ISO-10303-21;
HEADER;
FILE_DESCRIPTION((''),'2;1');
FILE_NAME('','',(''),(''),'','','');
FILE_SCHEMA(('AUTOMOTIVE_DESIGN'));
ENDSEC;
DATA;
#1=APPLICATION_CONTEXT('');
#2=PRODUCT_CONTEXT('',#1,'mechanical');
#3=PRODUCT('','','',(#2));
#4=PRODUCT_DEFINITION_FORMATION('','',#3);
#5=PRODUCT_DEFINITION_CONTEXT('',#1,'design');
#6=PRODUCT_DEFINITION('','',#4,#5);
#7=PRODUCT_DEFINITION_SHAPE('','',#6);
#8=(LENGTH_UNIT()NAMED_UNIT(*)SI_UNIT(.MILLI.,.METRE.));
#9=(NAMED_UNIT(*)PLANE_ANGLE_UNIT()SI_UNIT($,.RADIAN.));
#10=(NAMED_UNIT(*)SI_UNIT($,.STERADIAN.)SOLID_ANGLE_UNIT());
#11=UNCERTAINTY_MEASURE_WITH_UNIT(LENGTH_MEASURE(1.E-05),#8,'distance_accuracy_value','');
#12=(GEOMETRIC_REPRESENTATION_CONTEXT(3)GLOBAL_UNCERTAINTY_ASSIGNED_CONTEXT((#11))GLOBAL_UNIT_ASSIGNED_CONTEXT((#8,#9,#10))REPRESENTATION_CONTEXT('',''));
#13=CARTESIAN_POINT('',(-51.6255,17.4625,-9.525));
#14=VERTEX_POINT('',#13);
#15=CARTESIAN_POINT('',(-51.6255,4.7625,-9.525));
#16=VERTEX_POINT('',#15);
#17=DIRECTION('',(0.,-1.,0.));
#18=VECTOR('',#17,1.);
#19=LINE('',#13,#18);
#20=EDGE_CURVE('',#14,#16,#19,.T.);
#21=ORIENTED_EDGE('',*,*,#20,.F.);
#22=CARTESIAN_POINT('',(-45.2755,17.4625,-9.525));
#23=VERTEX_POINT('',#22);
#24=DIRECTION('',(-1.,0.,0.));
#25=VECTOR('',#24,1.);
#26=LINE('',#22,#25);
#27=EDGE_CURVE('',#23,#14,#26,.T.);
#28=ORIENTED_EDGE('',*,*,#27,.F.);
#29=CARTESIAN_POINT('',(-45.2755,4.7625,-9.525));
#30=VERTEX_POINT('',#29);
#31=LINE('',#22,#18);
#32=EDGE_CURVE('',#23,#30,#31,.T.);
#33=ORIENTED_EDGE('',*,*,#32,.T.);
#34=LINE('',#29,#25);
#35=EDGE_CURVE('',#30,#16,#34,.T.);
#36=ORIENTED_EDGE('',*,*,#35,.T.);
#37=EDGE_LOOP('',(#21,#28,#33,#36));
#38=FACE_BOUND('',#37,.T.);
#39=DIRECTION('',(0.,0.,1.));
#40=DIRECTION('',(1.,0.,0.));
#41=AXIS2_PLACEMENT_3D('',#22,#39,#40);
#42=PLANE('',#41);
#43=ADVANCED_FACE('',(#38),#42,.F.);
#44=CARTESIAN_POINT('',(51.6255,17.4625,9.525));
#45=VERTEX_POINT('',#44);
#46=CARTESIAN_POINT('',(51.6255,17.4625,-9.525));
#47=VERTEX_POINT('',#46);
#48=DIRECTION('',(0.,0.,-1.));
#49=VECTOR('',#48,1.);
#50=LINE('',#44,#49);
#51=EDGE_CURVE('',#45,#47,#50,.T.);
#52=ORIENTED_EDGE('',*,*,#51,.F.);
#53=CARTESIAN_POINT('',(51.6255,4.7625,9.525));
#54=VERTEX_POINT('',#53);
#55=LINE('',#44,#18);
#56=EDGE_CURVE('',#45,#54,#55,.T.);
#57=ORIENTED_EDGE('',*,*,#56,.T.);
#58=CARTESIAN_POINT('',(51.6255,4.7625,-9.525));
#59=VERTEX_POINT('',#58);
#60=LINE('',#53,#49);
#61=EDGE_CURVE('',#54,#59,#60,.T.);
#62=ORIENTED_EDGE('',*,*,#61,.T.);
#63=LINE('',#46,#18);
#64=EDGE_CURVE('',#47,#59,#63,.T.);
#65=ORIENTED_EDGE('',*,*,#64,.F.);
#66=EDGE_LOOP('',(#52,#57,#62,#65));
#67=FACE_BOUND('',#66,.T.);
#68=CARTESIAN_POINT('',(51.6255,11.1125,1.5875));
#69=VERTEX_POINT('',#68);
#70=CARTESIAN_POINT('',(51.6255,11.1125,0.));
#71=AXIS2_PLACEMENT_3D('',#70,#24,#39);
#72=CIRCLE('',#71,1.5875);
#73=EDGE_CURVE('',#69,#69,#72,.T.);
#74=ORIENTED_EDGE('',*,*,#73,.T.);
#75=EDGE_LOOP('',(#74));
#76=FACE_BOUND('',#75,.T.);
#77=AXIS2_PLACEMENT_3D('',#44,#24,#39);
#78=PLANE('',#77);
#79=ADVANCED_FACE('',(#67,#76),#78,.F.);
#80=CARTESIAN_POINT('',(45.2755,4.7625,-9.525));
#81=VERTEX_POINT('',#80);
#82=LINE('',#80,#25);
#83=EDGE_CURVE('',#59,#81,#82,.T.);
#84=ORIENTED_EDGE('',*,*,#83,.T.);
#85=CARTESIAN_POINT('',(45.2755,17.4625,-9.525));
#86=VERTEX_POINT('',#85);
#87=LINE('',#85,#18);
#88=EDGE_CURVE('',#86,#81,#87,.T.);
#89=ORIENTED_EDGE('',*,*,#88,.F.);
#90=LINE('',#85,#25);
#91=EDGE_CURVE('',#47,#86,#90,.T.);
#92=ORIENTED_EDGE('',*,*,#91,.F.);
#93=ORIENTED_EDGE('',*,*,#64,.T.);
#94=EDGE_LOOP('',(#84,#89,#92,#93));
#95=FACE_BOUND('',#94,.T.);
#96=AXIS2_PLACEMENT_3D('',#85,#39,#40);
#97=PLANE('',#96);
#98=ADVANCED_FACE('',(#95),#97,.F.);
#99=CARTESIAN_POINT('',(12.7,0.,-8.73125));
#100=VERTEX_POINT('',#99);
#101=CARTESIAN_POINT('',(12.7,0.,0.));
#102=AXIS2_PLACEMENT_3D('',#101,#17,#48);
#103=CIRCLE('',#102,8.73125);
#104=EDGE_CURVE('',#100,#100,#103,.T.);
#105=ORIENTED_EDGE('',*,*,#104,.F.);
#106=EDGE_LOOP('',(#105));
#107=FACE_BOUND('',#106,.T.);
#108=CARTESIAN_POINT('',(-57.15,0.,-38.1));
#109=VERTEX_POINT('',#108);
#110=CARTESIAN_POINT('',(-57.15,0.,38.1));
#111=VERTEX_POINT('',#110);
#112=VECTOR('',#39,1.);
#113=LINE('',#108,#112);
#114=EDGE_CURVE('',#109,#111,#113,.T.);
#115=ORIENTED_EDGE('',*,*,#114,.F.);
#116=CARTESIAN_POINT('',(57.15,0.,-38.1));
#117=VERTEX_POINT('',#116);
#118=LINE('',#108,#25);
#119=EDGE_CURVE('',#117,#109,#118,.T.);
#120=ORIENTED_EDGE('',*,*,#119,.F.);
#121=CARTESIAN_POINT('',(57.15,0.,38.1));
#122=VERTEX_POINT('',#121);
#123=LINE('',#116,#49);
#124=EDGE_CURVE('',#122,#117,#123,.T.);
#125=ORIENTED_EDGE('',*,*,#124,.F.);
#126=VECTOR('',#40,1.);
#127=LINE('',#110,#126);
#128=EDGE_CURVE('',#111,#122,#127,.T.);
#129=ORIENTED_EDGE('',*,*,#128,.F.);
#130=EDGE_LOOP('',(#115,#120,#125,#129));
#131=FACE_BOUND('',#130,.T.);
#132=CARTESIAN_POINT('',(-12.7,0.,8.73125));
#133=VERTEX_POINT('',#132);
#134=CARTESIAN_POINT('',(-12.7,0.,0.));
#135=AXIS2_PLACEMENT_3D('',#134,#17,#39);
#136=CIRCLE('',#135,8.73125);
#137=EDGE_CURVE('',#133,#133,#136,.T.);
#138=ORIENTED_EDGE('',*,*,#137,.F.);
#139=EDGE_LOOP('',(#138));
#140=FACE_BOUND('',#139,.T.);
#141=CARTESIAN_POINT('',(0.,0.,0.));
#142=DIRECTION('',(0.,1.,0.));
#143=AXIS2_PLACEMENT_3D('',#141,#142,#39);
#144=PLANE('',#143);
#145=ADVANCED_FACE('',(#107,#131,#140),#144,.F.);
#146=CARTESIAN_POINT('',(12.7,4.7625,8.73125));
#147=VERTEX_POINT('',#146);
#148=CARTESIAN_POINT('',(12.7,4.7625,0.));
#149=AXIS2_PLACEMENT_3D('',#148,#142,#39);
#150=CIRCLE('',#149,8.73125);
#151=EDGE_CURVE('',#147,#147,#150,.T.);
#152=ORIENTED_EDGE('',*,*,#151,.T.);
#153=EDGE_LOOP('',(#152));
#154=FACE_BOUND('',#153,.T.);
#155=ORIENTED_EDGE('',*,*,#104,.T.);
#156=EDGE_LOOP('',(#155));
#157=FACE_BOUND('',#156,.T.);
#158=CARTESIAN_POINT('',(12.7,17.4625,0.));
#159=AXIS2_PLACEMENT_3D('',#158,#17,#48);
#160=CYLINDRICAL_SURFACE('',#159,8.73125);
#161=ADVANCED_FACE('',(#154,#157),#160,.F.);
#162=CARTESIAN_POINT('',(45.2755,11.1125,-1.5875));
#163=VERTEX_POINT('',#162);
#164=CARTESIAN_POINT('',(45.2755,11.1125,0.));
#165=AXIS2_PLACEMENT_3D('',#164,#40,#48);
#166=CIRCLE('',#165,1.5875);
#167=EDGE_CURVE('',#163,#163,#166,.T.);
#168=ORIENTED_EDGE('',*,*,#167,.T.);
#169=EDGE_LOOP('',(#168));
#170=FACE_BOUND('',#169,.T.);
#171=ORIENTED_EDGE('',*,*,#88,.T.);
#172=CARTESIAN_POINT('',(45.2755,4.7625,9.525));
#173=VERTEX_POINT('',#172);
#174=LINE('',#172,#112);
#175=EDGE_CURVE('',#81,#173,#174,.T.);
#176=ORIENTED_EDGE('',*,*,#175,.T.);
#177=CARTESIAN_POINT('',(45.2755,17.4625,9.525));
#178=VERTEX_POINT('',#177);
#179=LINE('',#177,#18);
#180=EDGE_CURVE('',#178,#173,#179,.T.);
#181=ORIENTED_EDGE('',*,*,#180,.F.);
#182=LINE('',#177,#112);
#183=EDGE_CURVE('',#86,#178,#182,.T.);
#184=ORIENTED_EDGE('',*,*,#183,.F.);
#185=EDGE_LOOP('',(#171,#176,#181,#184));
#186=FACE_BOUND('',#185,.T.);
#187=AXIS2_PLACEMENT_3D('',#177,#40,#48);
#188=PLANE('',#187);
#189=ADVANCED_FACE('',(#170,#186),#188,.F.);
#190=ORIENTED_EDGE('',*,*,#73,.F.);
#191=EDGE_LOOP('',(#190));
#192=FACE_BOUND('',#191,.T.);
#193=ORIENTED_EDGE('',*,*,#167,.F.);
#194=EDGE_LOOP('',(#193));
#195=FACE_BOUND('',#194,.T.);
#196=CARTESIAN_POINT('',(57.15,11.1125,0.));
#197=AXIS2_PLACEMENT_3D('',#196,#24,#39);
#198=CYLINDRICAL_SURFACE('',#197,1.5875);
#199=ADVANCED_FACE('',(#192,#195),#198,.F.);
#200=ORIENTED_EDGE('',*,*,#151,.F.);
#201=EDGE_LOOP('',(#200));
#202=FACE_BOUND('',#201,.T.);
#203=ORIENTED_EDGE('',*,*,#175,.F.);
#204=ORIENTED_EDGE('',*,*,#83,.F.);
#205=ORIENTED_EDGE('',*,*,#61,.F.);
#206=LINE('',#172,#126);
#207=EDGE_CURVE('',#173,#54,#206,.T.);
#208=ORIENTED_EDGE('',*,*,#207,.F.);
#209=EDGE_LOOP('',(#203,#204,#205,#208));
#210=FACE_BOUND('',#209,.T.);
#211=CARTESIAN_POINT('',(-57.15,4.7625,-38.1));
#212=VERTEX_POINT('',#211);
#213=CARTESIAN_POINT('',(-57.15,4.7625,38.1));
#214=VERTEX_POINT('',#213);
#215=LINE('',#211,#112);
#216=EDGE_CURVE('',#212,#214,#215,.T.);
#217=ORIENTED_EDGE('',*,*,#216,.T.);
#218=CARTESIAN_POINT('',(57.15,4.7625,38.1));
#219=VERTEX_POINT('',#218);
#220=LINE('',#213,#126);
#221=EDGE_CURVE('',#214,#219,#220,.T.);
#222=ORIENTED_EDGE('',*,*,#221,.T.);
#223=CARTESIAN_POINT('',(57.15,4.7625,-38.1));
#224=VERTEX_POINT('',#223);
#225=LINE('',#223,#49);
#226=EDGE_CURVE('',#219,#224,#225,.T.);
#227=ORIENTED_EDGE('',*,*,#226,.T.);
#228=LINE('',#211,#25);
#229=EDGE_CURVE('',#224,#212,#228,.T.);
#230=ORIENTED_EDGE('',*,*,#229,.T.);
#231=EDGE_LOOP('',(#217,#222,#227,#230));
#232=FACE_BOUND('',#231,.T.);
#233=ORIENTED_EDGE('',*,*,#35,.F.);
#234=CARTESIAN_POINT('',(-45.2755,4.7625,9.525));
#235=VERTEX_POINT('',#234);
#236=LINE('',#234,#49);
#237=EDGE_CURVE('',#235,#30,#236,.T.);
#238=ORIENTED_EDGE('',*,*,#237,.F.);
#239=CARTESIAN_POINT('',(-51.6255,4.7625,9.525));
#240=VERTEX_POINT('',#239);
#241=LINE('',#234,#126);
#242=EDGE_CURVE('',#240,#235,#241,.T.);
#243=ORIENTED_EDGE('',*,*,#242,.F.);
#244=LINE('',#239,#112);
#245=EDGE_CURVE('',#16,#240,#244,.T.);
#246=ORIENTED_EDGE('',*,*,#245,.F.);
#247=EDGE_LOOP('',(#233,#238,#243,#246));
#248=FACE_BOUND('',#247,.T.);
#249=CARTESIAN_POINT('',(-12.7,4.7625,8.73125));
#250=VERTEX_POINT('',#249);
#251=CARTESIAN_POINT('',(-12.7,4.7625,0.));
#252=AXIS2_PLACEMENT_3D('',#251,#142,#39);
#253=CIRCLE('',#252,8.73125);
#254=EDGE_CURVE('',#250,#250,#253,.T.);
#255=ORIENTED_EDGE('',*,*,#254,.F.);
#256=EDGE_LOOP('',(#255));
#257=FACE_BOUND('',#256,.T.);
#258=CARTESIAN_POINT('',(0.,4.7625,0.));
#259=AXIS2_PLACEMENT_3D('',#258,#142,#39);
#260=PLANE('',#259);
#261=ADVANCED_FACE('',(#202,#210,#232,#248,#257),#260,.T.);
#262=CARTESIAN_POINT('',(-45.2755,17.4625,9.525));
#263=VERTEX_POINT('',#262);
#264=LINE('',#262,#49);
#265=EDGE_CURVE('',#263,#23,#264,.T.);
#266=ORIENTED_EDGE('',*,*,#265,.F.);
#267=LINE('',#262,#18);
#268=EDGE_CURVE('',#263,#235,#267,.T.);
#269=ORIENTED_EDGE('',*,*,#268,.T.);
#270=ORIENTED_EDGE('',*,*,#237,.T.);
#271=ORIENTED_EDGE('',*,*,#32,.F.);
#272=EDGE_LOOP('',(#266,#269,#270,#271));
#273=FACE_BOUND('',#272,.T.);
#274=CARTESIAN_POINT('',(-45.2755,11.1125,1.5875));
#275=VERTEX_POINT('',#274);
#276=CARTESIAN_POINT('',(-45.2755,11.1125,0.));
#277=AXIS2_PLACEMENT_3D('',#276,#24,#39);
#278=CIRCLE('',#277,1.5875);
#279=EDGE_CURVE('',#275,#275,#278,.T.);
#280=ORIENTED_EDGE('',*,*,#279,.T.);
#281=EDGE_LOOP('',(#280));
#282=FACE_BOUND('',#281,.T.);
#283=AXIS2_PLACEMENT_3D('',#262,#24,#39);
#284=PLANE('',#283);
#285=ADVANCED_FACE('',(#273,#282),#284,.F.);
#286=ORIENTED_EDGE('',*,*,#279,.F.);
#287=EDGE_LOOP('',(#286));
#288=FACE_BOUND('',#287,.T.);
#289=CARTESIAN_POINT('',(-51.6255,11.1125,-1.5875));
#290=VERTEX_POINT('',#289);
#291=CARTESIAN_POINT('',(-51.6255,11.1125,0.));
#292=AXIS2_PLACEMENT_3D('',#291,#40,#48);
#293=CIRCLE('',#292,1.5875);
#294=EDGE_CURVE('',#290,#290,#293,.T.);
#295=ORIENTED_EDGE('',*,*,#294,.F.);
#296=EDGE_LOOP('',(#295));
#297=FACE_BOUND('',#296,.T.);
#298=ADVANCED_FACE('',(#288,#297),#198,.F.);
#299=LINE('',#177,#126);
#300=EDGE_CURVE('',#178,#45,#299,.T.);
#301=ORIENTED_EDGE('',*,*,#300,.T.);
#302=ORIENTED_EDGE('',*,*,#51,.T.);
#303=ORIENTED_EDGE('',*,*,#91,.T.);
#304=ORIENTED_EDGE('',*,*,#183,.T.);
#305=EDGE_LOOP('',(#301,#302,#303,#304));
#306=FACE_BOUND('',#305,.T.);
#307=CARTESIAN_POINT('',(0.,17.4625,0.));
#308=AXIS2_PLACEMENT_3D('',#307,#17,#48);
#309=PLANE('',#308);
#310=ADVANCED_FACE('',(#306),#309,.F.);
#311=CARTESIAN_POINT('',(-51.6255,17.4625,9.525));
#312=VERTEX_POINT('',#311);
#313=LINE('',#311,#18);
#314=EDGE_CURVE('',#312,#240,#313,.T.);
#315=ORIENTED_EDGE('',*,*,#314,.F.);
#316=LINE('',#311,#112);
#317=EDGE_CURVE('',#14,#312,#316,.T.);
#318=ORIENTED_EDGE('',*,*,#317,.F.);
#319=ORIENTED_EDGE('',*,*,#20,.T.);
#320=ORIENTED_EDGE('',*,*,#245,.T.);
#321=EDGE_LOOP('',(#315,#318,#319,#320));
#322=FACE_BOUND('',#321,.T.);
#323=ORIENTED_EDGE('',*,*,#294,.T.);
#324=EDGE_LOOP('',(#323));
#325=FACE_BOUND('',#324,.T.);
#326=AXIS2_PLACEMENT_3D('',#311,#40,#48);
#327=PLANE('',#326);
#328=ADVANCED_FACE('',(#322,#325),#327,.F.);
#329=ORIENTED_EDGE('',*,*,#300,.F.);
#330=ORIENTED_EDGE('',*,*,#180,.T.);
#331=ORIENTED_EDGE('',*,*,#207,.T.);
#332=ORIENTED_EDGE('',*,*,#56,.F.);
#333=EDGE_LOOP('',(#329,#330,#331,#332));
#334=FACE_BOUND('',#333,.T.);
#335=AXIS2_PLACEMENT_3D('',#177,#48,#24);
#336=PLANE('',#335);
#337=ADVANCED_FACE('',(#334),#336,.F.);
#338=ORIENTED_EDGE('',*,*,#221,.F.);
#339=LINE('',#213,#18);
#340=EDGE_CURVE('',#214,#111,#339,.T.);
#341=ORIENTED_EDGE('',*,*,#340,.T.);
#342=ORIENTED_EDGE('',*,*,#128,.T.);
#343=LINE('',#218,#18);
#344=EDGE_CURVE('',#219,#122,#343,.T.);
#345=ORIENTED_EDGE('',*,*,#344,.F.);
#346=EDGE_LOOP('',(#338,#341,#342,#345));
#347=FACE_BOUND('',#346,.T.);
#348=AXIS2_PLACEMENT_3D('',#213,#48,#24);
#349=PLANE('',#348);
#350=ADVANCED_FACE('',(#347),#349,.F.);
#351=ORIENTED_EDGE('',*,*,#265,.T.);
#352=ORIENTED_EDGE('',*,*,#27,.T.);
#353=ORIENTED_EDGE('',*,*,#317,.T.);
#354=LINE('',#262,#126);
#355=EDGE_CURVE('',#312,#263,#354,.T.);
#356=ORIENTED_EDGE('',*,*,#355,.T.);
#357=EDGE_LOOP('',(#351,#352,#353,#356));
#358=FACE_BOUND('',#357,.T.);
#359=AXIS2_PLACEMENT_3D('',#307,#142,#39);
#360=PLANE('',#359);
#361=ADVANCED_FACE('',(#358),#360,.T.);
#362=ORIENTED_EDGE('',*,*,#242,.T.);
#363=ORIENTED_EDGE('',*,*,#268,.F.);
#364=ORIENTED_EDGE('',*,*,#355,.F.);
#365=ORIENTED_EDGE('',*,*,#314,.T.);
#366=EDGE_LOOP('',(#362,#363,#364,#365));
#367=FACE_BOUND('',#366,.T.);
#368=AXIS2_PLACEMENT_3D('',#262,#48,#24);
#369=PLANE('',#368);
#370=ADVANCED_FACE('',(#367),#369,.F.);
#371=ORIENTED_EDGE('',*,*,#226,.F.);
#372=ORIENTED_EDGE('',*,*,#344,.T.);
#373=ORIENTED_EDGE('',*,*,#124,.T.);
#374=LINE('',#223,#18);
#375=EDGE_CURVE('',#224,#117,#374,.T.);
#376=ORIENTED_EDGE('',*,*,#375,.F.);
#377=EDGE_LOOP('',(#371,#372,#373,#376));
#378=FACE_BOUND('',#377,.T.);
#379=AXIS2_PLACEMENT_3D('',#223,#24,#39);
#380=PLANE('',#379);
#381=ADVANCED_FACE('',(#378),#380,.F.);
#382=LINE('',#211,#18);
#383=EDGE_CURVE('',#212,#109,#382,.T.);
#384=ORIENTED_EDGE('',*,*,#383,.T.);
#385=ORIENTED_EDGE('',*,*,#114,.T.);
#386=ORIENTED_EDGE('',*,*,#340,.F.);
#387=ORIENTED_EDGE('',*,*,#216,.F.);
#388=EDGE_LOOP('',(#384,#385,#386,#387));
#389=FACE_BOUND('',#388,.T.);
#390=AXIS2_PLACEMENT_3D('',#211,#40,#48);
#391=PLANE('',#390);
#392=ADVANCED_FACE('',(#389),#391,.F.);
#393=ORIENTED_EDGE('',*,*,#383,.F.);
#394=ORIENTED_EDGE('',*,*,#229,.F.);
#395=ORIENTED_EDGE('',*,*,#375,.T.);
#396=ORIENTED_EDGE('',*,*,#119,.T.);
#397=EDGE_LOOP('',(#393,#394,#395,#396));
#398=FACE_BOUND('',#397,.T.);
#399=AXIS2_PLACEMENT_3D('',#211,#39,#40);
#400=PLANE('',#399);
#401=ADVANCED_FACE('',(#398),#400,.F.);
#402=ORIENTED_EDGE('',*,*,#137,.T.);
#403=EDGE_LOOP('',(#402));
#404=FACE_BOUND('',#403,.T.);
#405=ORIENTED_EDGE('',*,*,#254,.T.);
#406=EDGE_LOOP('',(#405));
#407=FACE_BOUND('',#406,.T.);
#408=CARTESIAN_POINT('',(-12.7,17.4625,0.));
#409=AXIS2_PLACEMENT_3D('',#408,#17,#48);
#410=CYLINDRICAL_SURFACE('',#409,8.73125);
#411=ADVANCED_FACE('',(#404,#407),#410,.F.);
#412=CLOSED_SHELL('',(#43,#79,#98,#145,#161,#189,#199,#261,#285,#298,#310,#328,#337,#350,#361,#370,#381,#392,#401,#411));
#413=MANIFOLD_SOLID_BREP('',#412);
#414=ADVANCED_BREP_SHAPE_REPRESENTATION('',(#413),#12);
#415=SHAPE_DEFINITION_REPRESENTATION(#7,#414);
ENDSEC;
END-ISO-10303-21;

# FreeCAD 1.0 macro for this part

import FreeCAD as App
import Part
import Sketcher
from FreeCAD import Vector
Q = App.Units.Quantity


def add_polygon(sketch, points):
    """Adds a closed chain of lines whose ends are joined by coincident constraints."""
    first, n = sketch.GeometryCount, len(points)
    for a, b in zip(points, points[1:] + points[:1]):
        sketch.addGeometry(Part.LineSegment(App.Vector(*a, 0), App.Vector(*b, 0)), False)
    for i in range(n):
        sketch.addConstraint(Sketcher.Constraint("Coincident", first + i, 2, first + (i + 1) % n, 1))

doc = App.newDocument("Part")
body = doc.addObject("PartDesign::Body", "Body")

# Sketch on XZ plane
sketch1 = body.newObject("Sketcher::SketchObject", "Sketch")
sketch1.AttachmentSupport = (doc.getObject("XZ_Plane"), [""])
sketch1.MapMode = "FlatFace"
add_polygon(sketch1, [(-57, -38), (-57, 38), (57, 38), (57, -38)])  # lines 0-3
sketch1.addConstraint([
    Sketcher.Constraint("Vertical", 0),
    Sketcher.Constraint("Horizontal", 1),
    Sketcher.Constraint("Vertical", 2),
    Sketcher.Constraint("Horizontal", 3),
    Sketcher.Constraint("Symmetric", 0, 2, 2, 2, -1, 1),
    Sketcher.Constraint("DistanceY", 0, 1, 0, 2, Q("3 in")),
    Sketcher.Constraint("DistanceX", 1, 1, 1, 2, Q("4.5 in")),
])
pad1 = body.newObject("PartDesign::Pad", "Pad")
pad1.Profile = sketch1
pad1.Length = Q("0.1875 in")
pad1.Reversed = True

# Sketch on XZ plane
sketch2 = body.newObject("Sketcher::SketchObject", "Sketch001")
sketch2.AttachmentSupport = (doc.getObject("XZ_Plane"), [""])
sketch2.MapMode = "FlatFace"
sketch2.AttachmentOffset = App.Placement(Vector(0, 0, -0.1875 * 25.4), App.Rotation())
add_polygon(sketch2, [(-52, -10), (-52, 10), (-45, 10), (-45, -10)])  # lines 0-3
add_polygon(sketch2, [(45, -10), (45, 10), (52, 10), (52, -10)])  # lines 4-7
sketch2.addConstraint([
    Sketcher.Constraint("Vertical", 0),
    Sketcher.Constraint("Horizontal", 1),
    Sketcher.Constraint("Vertical", 2),
    Sketcher.Constraint("Horizontal", 3),
    Sketcher.Constraint("Vertical", 4),
    Sketcher.Constraint("Horizontal", 5),
    Sketcher.Constraint("Vertical", 6),
    Sketcher.Constraint("Horizontal", 7),
    Sketcher.Constraint("Symmetric", 2, 2, 4, 2, -1, 1),
    Sketcher.Constraint("Symmetric", 0, 2, 6, 2, -1, 1),
    Sketcher.Constraint("Horizontal", 1, 2, 4, 2),
    Sketcher.Constraint("DistanceX", 1, 1, 1, 2, Q("0.25 in")),
    Sketcher.Constraint("DistanceY", 0, 1, 0, 2, Q("0.75 in")),
    Sketcher.Constraint("DistanceX", 1, 2, 4, 2, Q("3.565 in")),
])
pad2 = body.newObject("PartDesign::Pad", "Pad001")
pad2.Profile = sketch2
pad2.Length = Q("0.5 in")
pad2.Reversed = True

# Sketch on YZ plane
sketch3 = body.newObject("Sketcher::SketchObject", "Sketch002")
sketch3.AttachmentSupport = (doc.getObject("YZ_Plane"), [""])
sketch3.MapMode = "FlatFace"
sketch3.AttachmentOffset = App.Placement(Vector(0, 0, -2.0325 * 25.4), App.Rotation())
sketch3.addGeometry(Part.Circle(Vector(11.1, 0, 0), Vector(0, 0, 1), 1.6), False)
sketch3.addConstraint([
    Sketcher.Constraint("PointOnObject", 0, 3, -1),
    Sketcher.Constraint("Diameter", 0, Q("0.125 in")),
    Sketcher.Constraint("DistanceX", -1, 1, 0, 3, Q("0.4375 in")),
])
pocket1 = body.newObject("PartDesign::Pocket", "Pocket")
pocket1.Profile = sketch3
pocket1.Type = "ThroughAll"
pocket1.Midplane = True

# Sketch on XZ plane
sketch4 = body.newObject("Sketcher::SketchObject", "Sketch003")
sketch4.AttachmentSupport = (doc.getObject("XZ_Plane"), [""])
sketch4.MapMode = "FlatFace"
sketch4.addGeometry([
    Part.Circle(Vector(13, 0, 0), Vector(0, 0, 1), 9),
    Part.Circle(Vector(-13, 0, 0), Vector(0, 0, 1), 9),
], False)
sketch4.addConstraint([
    Sketcher.Constraint("Equal", 0, 1),
    Sketcher.Constraint("Symmetric", 0, 3, 1, 3, -1, 1),
    Sketcher.Constraint("PointOnObject", 0, 3, -1),
    Sketcher.Constraint("Diameter", 0, Q("0.6875 in")),
    Sketcher.Constraint("DistanceX", 1, 3, 0, 3, Q("1 in")),
])
pocket2 = body.newObject("PartDesign::Pocket", "Pocket001")
pocket2.Profile = sketch4
pocket2.Type = "ThroughAll"

doc.recompute()
